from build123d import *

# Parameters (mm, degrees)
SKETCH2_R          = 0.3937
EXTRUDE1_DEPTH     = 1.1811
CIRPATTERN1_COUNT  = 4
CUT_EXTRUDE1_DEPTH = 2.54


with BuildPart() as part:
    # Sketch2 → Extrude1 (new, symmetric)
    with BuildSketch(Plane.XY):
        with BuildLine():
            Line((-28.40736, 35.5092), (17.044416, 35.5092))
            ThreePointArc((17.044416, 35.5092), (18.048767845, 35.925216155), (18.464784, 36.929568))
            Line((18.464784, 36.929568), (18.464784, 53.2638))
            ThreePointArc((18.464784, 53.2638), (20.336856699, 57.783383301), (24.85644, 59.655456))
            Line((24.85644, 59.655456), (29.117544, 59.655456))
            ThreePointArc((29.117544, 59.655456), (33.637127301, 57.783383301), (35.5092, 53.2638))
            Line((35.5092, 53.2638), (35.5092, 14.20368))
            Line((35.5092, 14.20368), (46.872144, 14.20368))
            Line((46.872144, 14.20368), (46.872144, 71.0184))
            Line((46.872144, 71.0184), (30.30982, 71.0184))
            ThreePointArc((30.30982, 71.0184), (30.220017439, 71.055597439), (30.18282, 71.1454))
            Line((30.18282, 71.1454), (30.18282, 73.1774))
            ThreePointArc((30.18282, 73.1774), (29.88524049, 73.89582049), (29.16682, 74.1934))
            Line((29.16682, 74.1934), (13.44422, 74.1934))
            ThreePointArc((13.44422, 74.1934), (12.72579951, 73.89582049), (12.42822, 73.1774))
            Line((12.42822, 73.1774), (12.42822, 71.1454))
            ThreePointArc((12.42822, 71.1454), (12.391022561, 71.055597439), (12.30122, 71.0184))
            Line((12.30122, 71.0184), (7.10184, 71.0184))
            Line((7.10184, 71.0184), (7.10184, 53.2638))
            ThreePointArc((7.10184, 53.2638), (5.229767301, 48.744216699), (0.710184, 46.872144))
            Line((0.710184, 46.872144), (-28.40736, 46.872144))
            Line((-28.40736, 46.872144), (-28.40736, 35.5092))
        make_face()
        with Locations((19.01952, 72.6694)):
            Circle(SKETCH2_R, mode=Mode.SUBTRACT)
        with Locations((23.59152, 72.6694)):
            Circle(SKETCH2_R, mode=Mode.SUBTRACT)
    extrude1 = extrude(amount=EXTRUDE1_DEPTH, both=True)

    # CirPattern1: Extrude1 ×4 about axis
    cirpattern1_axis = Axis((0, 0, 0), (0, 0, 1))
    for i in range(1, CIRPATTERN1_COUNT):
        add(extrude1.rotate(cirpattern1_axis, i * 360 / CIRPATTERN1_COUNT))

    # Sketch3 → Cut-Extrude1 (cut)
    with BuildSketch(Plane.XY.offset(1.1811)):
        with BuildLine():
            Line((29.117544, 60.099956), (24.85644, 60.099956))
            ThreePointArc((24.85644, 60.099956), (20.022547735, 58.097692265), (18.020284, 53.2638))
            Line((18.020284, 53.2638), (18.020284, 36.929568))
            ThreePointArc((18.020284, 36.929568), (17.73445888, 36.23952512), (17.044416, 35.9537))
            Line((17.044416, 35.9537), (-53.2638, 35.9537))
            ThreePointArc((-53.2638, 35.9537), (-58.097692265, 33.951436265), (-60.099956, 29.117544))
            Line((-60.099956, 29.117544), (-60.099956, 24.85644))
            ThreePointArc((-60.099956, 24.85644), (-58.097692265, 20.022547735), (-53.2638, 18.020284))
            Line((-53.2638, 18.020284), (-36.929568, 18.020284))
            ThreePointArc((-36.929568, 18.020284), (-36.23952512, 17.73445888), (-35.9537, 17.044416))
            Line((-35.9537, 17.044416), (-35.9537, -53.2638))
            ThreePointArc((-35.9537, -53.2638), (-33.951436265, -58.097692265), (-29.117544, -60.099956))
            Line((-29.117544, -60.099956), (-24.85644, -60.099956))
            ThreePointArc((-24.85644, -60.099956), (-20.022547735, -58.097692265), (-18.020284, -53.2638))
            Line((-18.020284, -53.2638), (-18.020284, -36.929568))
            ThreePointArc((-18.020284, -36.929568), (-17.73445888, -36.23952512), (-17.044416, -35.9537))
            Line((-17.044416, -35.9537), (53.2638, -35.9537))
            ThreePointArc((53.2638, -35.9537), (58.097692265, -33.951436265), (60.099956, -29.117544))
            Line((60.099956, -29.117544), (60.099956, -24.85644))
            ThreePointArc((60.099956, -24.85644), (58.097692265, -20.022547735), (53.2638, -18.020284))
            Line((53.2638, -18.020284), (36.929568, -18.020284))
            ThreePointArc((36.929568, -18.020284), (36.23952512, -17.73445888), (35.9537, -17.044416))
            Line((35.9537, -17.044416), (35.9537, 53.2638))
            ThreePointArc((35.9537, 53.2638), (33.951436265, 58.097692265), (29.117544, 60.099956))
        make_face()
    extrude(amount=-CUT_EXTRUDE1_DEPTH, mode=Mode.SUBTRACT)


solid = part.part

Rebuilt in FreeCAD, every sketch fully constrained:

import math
import FreeCAD as App
import Part
import Sketcher
from FreeCAD import Vector
Q = App.Units.Quantity

doc = App.newDocument("Part")
params = doc.addObject("Spreadsheet::Sheet", "Params")
for row, (alias, value) in enumerate([
    ("sketch1_radius", "0.04 in"),
    ("sketch1_diameter", "0.031 in"),
    ("sketch1_radius2", "0.005 in"),
    ("sketch1_height", "0.08 in"),
    ("sketch1_width", "0.619 in"),
    ("pad1_length", "0.093 in"),
    ("pocket1_length", "0.1 in"),
], start=1):
    params.set(f"A{row}", alias)
    params.set(f"B{row}", "=" + value)
    params.setAlias(f"B{row}", alias)

body = doc.addObject("PartDesign::Body", "Body")

# Sketch on XY plane
sketch1 = body.newObject("Sketcher::SketchObject", "Sketch")
sketch1.AttachmentSupport = (doc.getObject("XY_Plane"), [""])
sketch1.MapMode = "FlatFace"
sketch1.addGeometry([
    Part.LineSegment(Vector(-28.41, 35.51, 0), Vector(17.04, 35.51, 0)),  # 0
    Part.ArcOfCircle(Part.Circle(Vector(17.04, 36.93, 0), Vector(0, 0, 1), 1.42), math.radians(-90), math.radians(0)),  # 1
    Part.LineSegment(Vector(18.46, 36.93, 0), Vector(18.46, 53.26, 0)),  # 2
    Part.ArcOfCircle(Part.Circle(Vector(24.86, 53.26, 0), Vector(0, 0, 1), 6.39), math.radians(90), math.radians(180)),  # 3
    Part.LineSegment(Vector(24.86, 59.66, 0), Vector(29.12, 59.66, 0)),  # 4
    Part.ArcOfCircle(Part.Circle(Vector(29.12, 53.26, 0), Vector(0, 0, 1), 6.39), math.radians(0), math.radians(90)),  # 5
    Part.LineSegment(Vector(35.51, 53.26, 0), Vector(35.51, 14.2, 0)),  # 6
    Part.LineSegment(Vector(35.51, 14.2, 0), Vector(46.87, 14.2, 0)),  # 7
    Part.LineSegment(Vector(46.87, 14.2, 0), Vector(46.87, 71.02, 0)),  # 8
    Part.LineSegment(Vector(46.87, 71.02, 0), Vector(30.31, 71.02, 0)),  # 9
    Part.ArcOfCircle(Part.Circle(Vector(30.31, 71.15, 0), Vector(0, 0, 1), 0.13), math.radians(-180), math.radians(-90)),  # 10
    Part.LineSegment(Vector(30.18, 71.15, 0), Vector(30.18, 73.18, 0)),  # 11
    Part.ArcOfCircle(Part.Circle(Vector(29.17, 73.18, 0), Vector(0, 0, 1), 1.02), math.radians(0), math.radians(90)),  # 12
    Part.LineSegment(Vector(29.17, 74.19, 0), Vector(13.44, 74.19, 0)),  # 13
    Part.ArcOfCircle(Part.Circle(Vector(13.44, 73.18, 0), Vector(0, 0, 1), 1.02), math.radians(90), math.radians(180)),  # 14
    Part.LineSegment(Vector(12.43, 73.18, 0), Vector(12.43, 71.15, 0)),  # 15
    Part.ArcOfCircle(Part.Circle(Vector(12.3, 71.15, 0), Vector(0, 0, 1), 0.13), math.radians(-90), math.radians(0)),  # 16
    Part.LineSegment(Vector(12.3, 71.02, 0), Vector(7.1, 71.02, 0)),  # 17
    Part.LineSegment(Vector(7.1, 71.02, 0), Vector(7.1, 53.26, 0)),  # 18
    Part.ArcOfCircle(Part.Circle(Vector(0.71, 53.26, 0), Vector(0, 0, 1), 6.39), math.radians(-90), math.radians(0)),  # 19
    Part.LineSegment(Vector(0.71, 46.87, 0), Vector(-28.41, 46.87, 0)),  # 20
    Part.LineSegment(Vector(-28.41, 46.87, 0), Vector(-28.41, 35.51, 0)),  # 21
    Part.Circle(Vector(19.02, 72.67, 0), Vector(0, 0, 1), 0.39),  # 22
    Part.Circle(Vector(23.59, 72.67, 0), Vector(0, 0, 1), 0.39),  # 23
], False)
sketch1.addConstraint([
    Sketcher.Constraint("Tangent", 0, 2, 1, 1),
    Sketcher.Constraint("Tangent", 1, 2, 2, 1),
    Sketcher.Constraint("Tangent", 2, 2, 3, 2),
    Sketcher.Constraint("Tangent", 3, 1, 4, 1),
    Sketcher.Constraint("Tangent", 4, 2, 5, 2),
    Sketcher.Constraint("Tangent", 5, 1, 6, 1),
    Sketcher.Constraint("Coincident", 6, 2, 7, 1),
    Sketcher.Constraint("Coincident", 7, 2, 8, 1),
    Sketcher.Constraint("Coincident", 8, 2, 9, 1),
    Sketcher.Constraint("Tangent", 9, 2, 10, 2),
    Sketcher.Constraint("Tangent", 10, 1, 11, 1),
    Sketcher.Constraint("Tangent", 11, 2, 12, 1),
    Sketcher.Constraint("Tangent", 12, 2, 13, 1),
    Sketcher.Constraint("Tangent", 13, 2, 14, 1),
    Sketcher.Constraint("Tangent", 14, 2, 15, 1),
    Sketcher.Constraint("Tangent", 15, 2, 16, 2),
    Sketcher.Constraint("Tangent", 16, 1, 17, 1),
    Sketcher.Constraint("Coincident", 17, 2, 18, 1),
    Sketcher.Constraint("Tangent", 18, 2, 19, 2),
    Sketcher.Constraint("Tangent", 19, 1, 20, 1),
    Sketcher.Constraint("Coincident", 20, 2, 21, 1),
    Sketcher.Constraint("Coincident", 21, 2, 0, 1),
    Sketcher.Constraint("Horizontal", 0),
    Sketcher.Constraint("Vertical", 2),
    Sketcher.Constraint("Horizontal", 4),
    Sketcher.Constraint("Vertical", 6),
    Sketcher.Constraint("Horizontal", 7),
    Sketcher.Constraint("Vertical", 8),
    Sketcher.Constraint("Horizontal", 9),
    Sketcher.Constraint("Vertical", 11),
    Sketcher.Constraint("Horizontal", 13),
    Sketcher.Constraint("Vertical", 15),
    Sketcher.Constraint("Horizontal", 17),
    Sketcher.Constraint("Vertical", 18),
    Sketcher.Constraint("Horizontal", 20),
    Sketcher.Constraint("Vertical", 21),
    Sketcher.Constraint("Equal", 3, 5),
    Sketcher.Constraint("Equal", 12, 14),
    Sketcher.Constraint("Equal", 10, 16),
    Sketcher.Constraint("Equal", 5, 19),
    Sketcher.Constraint("Equal", 22, 23),
    Sketcher.Constraint("Horizontal", 10, 3, 16, 3),
    Sketcher.Constraint("Horizontal", 5, 3, 19, 3),
    Sketcher.Constraint("Horizontal", 22, 3, 23, 3),
    Sketcher.Constraint("Equal", 7, 21),
    Sketcher.Constraint("Radius", 12, Q("0.04 in")),
    Sketcher.Constraint("Diameter", 22, Q("0.031 in")),
    Sketcher.Constraint("Radius", 10, Q("0.005 in")),
    Sketcher.Constraint("DistanceY", 11, 1, 11, 2, Q("0.08 in")),
    Sketcher.Constraint("DistanceX", 13, 2, 13, 1, Q("0.619 in")),
    Sketcher.Constraint("DistanceY", 18, 2, 18, 1, Q("0.699 in")),
    Sketcher.Constraint("DistanceY", 22, 3, 14, 3, Q("0.02 in")),
    Sketcher.Constraint("DistanceX", 22, 3, 23, 3, Q("0.18 in")),
    Sketcher.Constraint("DistanceX", 17, 2, 17, 1, Q("0.2047 in")),
    Sketcher.Constraint("DistanceY", 6, 2, 6, 1, Q("1.5378 in")),
    Sketcher.Constraint("DistanceY", -1, 1, 3, 3, Q("2.097 in")),
    Sketcher.Constraint("DistanceY", -1, 1, 0, 2, Q("1.398 in")),
    Sketcher.Constraint("DistanceX", -1, 1, 5, 1, Q("1.398 in")),
    Sketcher.Constraint("DistanceX", 19, 3, 1, 2, Q("0.699 in")),
    Sketcher.Constraint("DistanceX", 20, 2, 18, 2, Q("1.398 in")),
    Sketcher.Constraint("DistanceX", -1, 1, 3, 3, Q("0.9786 in")),
    Sketcher.Constraint("DistanceX", -1, 1, 22, 3, Q("0.7488 in")),
    Sketcher.Constraint("Radius", 1, Q("1.420368 mm")),
    Sketcher.Constraint("Radius", 3, Q("6.391656 mm")),
])
sketch1.setExpression("Constraints[45]", "Params.sketch1_radius")
sketch1.setExpression("Constraints[46]", "Params.sketch1_diameter")
sketch1.setExpression("Constraints[47]", "Params.sketch1_radius2")
sketch1.setExpression("Constraints[48]", "Params.sketch1_height")
sketch1.setExpression("Constraints[49]", "Params.sketch1_width")
pad1 = body.newObject("PartDesign::Pad", "Pad")
pad1.Profile = sketch1
pad1.setExpression("Length", "Params.pad1_length")
pad1.Midplane = True
doc.recompute()

polarpattern = body.newObject("PartDesign::PolarPattern", "PolarPattern")
polarpattern.Originals = [pad1]
polarpattern.Axis = (doc.getObject("Z_Axis"), [""])
polarpattern.Angle = 360
polarpattern.Occurrences = 4
body.Tip = polarpattern

# Sketch on XY plane
sketch2 = body.newObject("Sketcher::SketchObject", "Sketch001")
sketch2.AttachmentSupport = (doc.getObject("XY_Plane"), [""])
sketch2.MapMode = "FlatFace"
sketch2.AttachmentOffset = App.Placement(Vector(0, 0, 0.0465 * 25.4), App.Rotation())
sketch2.addGeometry([
    Part.LineSegment(Vector(29.1, 60.1, 0), Vector(24.9, 60.1, 0)),  # 0
    Part.ArcOfCircle(Part.Circle(Vector(24.9, 53.3, 0), Vector(0, 0, 1), 6.8), math.radians(90), math.radians(180)),  # 1
    Part.LineSegment(Vector(18, 53.3, 0), Vector(18, 36.9, 0)),  # 2
    Part.ArcOfCircle(Part.Circle(Vector(17, 36.9, 0), Vector(0, 0, 1), 1), math.radians(-90), math.radians(0)),  # 3
    Part.LineSegment(Vector(17, 36, 0), Vector(-53.3, 36, 0)),  # 4
    Part.ArcOfCircle(Part.Circle(Vector(-53.3, 29.1, 0), Vector(0, 0, 1), 6.8), math.radians(90), math.radians(180)),  # 5
    Part.LineSegment(Vector(-60.1, 29.1, 0), Vector(-60.1, 24.9, 0)),  # 6
    Part.ArcOfCircle(Part.Circle(Vector(-53.3, 24.9, 0), Vector(0, 0, 1), 6.8), math.radians(180), math.radians(270)),  # 7
    Part.LineSegment(Vector(-53.3, 18, 0), Vector(-36.9, 18, 0)),  # 8
    Part.ArcOfCircle(Part.Circle(Vector(-36.9, 17, 0), Vector(0, 0, 1), 1), math.radians(0), math.radians(90)),  # 9
    Part.LineSegment(Vector(-36, 17, 0), Vector(-36, -53.3, 0)),  # 10
    Part.ArcOfCircle(Part.Circle(Vector(-29.1, -53.3, 0), Vector(0, 0, 1), 6.8), math.radians(180), math.radians(270)),  # 11
    Part.LineSegment(Vector(-29.1, -60.1, 0), Vector(-24.9, -60.1, 0)),  # 12
    Part.ArcOfCircle(Part.Circle(Vector(-24.9, -53.3, 0), Vector(0, 0, 1), 6.8), math.radians(-90), math.radians(0)),  # 13
    Part.LineSegment(Vector(-18, -53.3, 0), Vector(-18, -36.9, 0)),  # 14
    Part.ArcOfCircle(Part.Circle(Vector(-17, -36.9, 0), Vector(0, 0, 1), 1), math.radians(90), math.radians(180)),  # 15
    Part.LineSegment(Vector(-17, -36, 0), Vector(53.3, -36, 0)),  # 16
    Part.ArcOfCircle(Part.Circle(Vector(53.3, -29.1, 0), Vector(0, 0, 1), 6.8), math.radians(-90), math.radians(0)),  # 17
    Part.LineSegment(Vector(60.1, -29.1, 0), Vector(60.1, -24.9, 0)),  # 18
    Part.ArcOfCircle(Part.Circle(Vector(53.3, -24.9, 0), Vector(0, 0, 1), 6.8), math.radians(0), math.radians(90)),  # 19
    Part.LineSegment(Vector(53.3, -18, 0), Vector(36.9, -18, 0)),  # 20
    Part.ArcOfCircle(Part.Circle(Vector(36.9, -17, 0), Vector(0, 0, 1), 1), math.radians(-180), math.radians(-90)),  # 21
    Part.LineSegment(Vector(36, -17, 0), Vector(36, 53.3, 0)),  # 22
    Part.ArcOfCircle(Part.Circle(Vector(29.1, 53.3, 0), Vector(0, 0, 1), 6.8), math.radians(0), math.radians(90)),  # 23
], False)
sketch2.addConstraint([
    Sketcher.Constraint("Tangent", 0, 2, 1, 1),
    Sketcher.Constraint("Tangent", 1, 2, 2, 1),
    Sketcher.Constraint("Tangent", 2, 2, 3, 2),
    Sketcher.Constraint("Tangent", 3, 1, 4, 1),
    Sketcher.Constraint("Tangent", 4, 2, 5, 1),
    Sketcher.Constraint("Tangent", 5, 2, 6, 1),
    Sketcher.Constraint("Tangent", 6, 2, 7, 1),
    Sketcher.Constraint("Tangent", 7, 2, 8, 1),
    Sketcher.Constraint("Tangent", 8, 2, 9, 2),
    Sketcher.Constraint("Tangent", 9, 1, 10, 1),
    Sketcher.Constraint("Tangent", 10, 2, 11, 1),
    Sketcher.Constraint("Tangent", 11, 2, 12, 1),
    Sketcher.Constraint("Tangent", 12, 2, 13, 1),
    Sketcher.Constraint("Tangent", 13, 2, 14, 1),
    Sketcher.Constraint("Tangent", 14, 2, 15, 2),
    Sketcher.Constraint("Tangent", 15, 1, 16, 1),
    Sketcher.Constraint("Tangent", 16, 2, 17, 1),
    Sketcher.Constraint("Tangent", 17, 2, 18, 1),
    Sketcher.Constraint("Tangent", 18, 2, 19, 1),
    Sketcher.Constraint("Tangent", 19, 2, 20, 1),
    Sketcher.Constraint("Tangent", 20, 2, 21, 2),
    Sketcher.Constraint("Tangent", 21, 1, 22, 1),
    Sketcher.Constraint("Tangent", 22, 2, 23, 1),
    Sketcher.Constraint("Tangent", 23, 2, 0, 1),
    Sketcher.Constraint("Horizontal", 0),
    Sketcher.Constraint("Vertical", 2),
    Sketcher.Constraint("Horizontal", 4),
    Sketcher.Constraint("Vertical", 6),
    Sketcher.Constraint("Horizontal", 8),
    Sketcher.Constraint("Vertical", 10),
    Sketcher.Constraint("Horizontal", 12),
    Sketcher.Constraint("Vertical", 14),
    Sketcher.Constraint("Horizontal", 16),
    Sketcher.Constraint("Vertical", 18),
    Sketcher.Constraint("Horizontal", 20),
    Sketcher.Constraint("Vertical", 22),
    Sketcher.Constraint("Equal", 1, 5),
    Sketcher.Constraint("Equal", 5, 7),
    Sketcher.Constraint("Equal", 3, 9),
    Sketcher.Constraint("Equal", 7, 11),
    Sketcher.Constraint("Equal", 11, 13),
    Sketcher.Constraint("Equal", 9, 15),
    Sketcher.Constraint("Equal", 13, 17),
    Sketcher.Constraint("Equal", 17, 19),
    Sketcher.Constraint("Equal", 15, 21),
    Sketcher.Constraint("Equal", 19, 23),
    Sketcher.Constraint("Symmetric", 1, 3, 13, 3, -1, 1),
    Sketcher.Constraint("Symmetric", 5, 3, 17, 3, -1, 1),
    Sketcher.Constraint("Symmetric", 9, 3, 21, 3, -1, 1),
    Sketcher.Constraint("Equal", 20, 2),
    Sketcher.Constraint("Equal", 12, 6),
    Sketcher.Constraint("Equal", 16, 10),
    Sketcher.Constraint("DistanceY", -1, 1, 1, 3, Q("2.097 in")),
    Sketcher.Constraint("Radius", 3, Q("0.975868 mm")),
    Sketcher.Constraint("DistanceX", -1, 1, 1, 3, Q("0.9786 in")),
    Sketcher.Constraint("DistanceY", -1, 1, 3, 1, Q("1.4155 in")),
    Sketcher.Constraint("Radius", 1, Q("6.836156 mm")),
])
pocket1 = body.newObject("PartDesign::Pocket", "Pocket")
pocket1.Profile = sketch2
pocket1.setExpression("Length", "Params.pocket1_length")

doc.recompute()
